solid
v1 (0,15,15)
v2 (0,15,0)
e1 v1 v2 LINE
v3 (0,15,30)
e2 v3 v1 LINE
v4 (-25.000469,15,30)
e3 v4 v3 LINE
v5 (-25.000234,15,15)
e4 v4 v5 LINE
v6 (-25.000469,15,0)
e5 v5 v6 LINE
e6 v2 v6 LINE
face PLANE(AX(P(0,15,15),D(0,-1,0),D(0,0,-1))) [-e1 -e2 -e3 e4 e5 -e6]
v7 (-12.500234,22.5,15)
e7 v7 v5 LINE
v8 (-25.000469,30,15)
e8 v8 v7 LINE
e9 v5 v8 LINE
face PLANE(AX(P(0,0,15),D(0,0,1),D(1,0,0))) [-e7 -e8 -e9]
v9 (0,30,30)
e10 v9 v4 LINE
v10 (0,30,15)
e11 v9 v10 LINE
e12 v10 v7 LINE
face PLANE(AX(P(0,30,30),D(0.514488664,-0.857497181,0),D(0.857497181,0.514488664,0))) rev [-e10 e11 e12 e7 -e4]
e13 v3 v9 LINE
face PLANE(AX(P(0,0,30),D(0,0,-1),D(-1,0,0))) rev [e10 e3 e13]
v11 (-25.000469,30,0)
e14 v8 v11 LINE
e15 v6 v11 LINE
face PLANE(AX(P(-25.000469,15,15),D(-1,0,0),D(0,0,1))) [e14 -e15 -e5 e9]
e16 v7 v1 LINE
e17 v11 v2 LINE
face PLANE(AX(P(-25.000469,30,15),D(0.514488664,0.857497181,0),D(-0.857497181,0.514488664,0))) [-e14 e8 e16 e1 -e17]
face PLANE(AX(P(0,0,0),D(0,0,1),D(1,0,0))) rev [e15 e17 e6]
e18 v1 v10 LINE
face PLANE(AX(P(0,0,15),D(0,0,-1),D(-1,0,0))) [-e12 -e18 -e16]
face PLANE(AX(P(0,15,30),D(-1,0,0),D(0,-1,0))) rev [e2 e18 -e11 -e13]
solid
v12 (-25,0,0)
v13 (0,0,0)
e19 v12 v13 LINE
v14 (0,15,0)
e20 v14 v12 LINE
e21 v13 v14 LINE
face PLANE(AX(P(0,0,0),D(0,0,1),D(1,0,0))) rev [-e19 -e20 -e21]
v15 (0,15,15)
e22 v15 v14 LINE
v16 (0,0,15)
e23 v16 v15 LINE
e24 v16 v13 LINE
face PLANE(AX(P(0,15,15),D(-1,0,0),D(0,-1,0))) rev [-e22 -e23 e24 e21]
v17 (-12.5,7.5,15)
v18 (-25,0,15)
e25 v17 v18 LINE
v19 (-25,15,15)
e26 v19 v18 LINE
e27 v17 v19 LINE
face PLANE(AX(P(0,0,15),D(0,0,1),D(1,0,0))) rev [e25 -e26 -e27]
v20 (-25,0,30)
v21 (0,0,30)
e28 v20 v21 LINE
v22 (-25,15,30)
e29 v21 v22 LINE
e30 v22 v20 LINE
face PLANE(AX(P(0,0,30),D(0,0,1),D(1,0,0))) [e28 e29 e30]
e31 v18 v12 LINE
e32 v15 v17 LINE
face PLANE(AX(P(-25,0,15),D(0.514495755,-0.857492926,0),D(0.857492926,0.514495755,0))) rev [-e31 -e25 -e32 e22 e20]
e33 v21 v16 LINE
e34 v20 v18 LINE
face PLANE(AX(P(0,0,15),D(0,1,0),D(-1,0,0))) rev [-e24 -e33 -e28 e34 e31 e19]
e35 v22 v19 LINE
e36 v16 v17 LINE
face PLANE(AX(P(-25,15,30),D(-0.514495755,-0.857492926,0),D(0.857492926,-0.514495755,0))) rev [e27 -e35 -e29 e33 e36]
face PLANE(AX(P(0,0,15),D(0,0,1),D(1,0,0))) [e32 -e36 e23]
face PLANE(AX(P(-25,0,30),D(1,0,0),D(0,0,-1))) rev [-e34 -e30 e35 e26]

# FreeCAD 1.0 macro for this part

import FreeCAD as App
import Part
import Sketcher


def add_polygon(sketch, points):
    """Adds a closed chain of lines whose ends are joined by coincident constraints."""
    first, n = sketch.GeometryCount, len(points)
    for a, b in zip(points, points[1:] + points[:1]):
        sketch.addGeometry(Part.LineSegment(App.Vector(*a, 0), App.Vector(*b, 0)), False)
    for i in range(n):
        sketch.addConstraint(Sketcher.Constraint("Coincident", first + i, 2, first + (i + 1) % n, 1))

doc = App.newDocument("Part")
params = doc.addObject("Spreadsheet::Sheet", "Params")
for row, (alias, value) in enumerate([
    ("sketch1_width", "25 mm"),
    ("sketch1_height", "15 mm"),
    ("pad1_length", "15 mm"),
    ("sketch2_width", "25 mm"),
    ("sketch2_height", "15 mm"),
    ("pad2_length", "15 mm"),
    ("sketch3_height", "15 mm"),
    ("pad3_length", "15 mm"),
    ("sketch4_height", "15 mm"),
    ("pad4_length", "15 mm"),
], start=1):
    params.set(f"A{row}", alias)
    params.set(f"B{row}", "=" + value)
    params.setAlias(f"B{row}", alias)

body = doc.addObject("PartDesign::Body", "Body")

sketch1 = doc.addObject("Sketcher::SketchObject", "Sketch")
body.addObject(sketch1)
sketch1.AttachmentSupport = (doc.XY_Plane, [""])
sketch1.MapMode = "FlatFace"
add_polygon(sketch1, [(0, 15), (-25, 0), (0, 0)])
sketch1.addConstraint([
    Sketcher.Constraint("Horizontal", 1),
    Sketcher.Constraint("Vertical", 2),
    Sketcher.Constraint("Coincident", 1, 2, -1, 1),
    Sketcher.Constraint("DistanceX", 1, 1, 1, 2, 25.0),
    Sketcher.Constraint("DistanceY", 2, 1, 2, 2, 15.0),
])
sketch1.setExpression("Constraints[6]", "Params.sketch1_width")
sketch1.setExpression("Constraints[7]", "Params.sketch1_height")
pad1 = doc.addObject("PartDesign::Pad", "Pad")
body.addObject(pad1)
pad1.Profile = sketch1
pad1.setExpression("Length", "Params.pad1_length")

sketch2 = doc.addObject("Sketcher::SketchObject", "Sketch001")
body.addObject(sketch2)
sketch2.AttachmentSupport = (doc.XY_Plane, [""])
sketch2.MapMode = "FlatFace"
sketch2.AttachmentOffset = App.Placement(App.Vector(0, 0, 15), App.Rotation())
add_polygon(sketch2, [(-25, 0), (0, 0), (-25, 15)])
sketch2.addConstraint([
    Sketcher.Constraint("Horizontal", 0),
    Sketcher.Constraint("Vertical", 2),
    Sketcher.Constraint("Coincident", 0, 2, -1, 1),
    Sketcher.Constraint("DistanceX", 0, 1, 0, 2, 25.0),
    Sketcher.Constraint("DistanceY", 2, 2, 2, 1, 15.0),
])
sketch2.setExpression("Constraints[6]", "Params.sketch2_width")
sketch2.setExpression("Constraints[7]", "Params.sketch2_height")
pad2 = doc.addObject("PartDesign::Pad", "Pad001")
body.addObject(pad2)
pad2.Profile = sketch2
pad2.setExpression("Length", "Params.pad2_length")
body2 = doc.addObject("PartDesign::Body", "Body001")

sketch3 = doc.addObject("Sketcher::SketchObject", "Sketch002")
body2.addObject(sketch3)
sketch3.AttachmentSupport = (doc.getObject("XY_Plane001"), [""])
sketch3.MapMode = "FlatFace"
add_polygon(sketch3, [(0, 15), (-25, 15), (-25, 30)])
sketch3.addConstraint([
    Sketcher.Constraint("Horizontal", 0),
    Sketcher.Constraint("Vertical", 1),
    Sketcher.Constraint("PointOnObject", 2, 2, -2),
    Sketcher.Constraint("DistanceY", 1, 1, 1, 2, 15.0),
    Sketcher.Constraint("DistanceY", -1, 1, 0, 2, 15.0),
    Sketcher.Constraint("DistanceX", 0, 2, 0, 1, 25.000469),
])
sketch3.setExpression("Constraints[6]", "Params.sketch3_height")
pad3 = doc.addObject("PartDesign::Pad", "Pad002")
body2.addObject(pad3)
pad3.Profile = sketch3
pad3.setExpression("Length", "Params.pad3_length")

sketch4 = doc.addObject("Sketcher::SketchObject", "Sketch003")
body2.addObject(sketch4)
sketch4.AttachmentSupport = (doc.getObject("XY_Plane001"), [""])
sketch4.MapMode = "FlatFace"
sketch4.AttachmentOffset = App.Placement(App.Vector(0, 0, 15), App.Rotation())
add_polygon(sketch4, [(-25, 15), (0, 15), (0, 30)])
sketch4.addConstraint([
    Sketcher.Constraint("Horizontal", 0),
    Sketcher.Constraint("Vertical", 1),
    Sketcher.Constraint("PointOnObject", 0, 2, -2),
    Sketcher.Constraint("DistanceY", 1, 1, 1, 2, 15.0),
    Sketcher.Constraint("DistanceY", -1, 1, 0, 2, 15.0),
    Sketcher.Constraint("DistanceX", 0, 1, 0, 2, 25.000469),
])
sketch4.setExpression("Constraints[6]", "Params.sketch4_height")
pad4 = doc.addObject("PartDesign::Pad", "Pad003")
body2.addObject(pad4)
pad4.Profile = sketch4
pad4.setExpression("Length", "Params.pad4_length")

doc.recompute()
